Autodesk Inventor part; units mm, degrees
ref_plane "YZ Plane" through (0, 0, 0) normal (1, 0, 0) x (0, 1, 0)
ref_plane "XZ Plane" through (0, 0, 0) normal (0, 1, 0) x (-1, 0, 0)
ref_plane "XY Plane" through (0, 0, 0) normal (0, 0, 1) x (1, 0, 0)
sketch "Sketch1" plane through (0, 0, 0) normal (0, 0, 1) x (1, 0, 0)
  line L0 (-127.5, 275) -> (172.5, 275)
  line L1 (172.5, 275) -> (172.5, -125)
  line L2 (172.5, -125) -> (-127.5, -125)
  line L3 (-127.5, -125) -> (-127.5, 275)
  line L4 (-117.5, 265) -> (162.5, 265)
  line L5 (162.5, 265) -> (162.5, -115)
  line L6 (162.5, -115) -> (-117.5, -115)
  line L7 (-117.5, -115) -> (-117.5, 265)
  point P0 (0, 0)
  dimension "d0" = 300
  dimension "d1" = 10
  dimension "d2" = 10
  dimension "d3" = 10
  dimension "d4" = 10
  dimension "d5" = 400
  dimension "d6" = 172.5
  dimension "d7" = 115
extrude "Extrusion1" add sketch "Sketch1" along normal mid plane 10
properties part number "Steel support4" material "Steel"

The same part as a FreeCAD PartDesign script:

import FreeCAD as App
import Part
import Sketcher

doc = App.newDocument("Part")
body = doc.addObject("PartDesign::Body", "Body")

# Sketch on XY plane
sketch1 = body.newObject("Sketcher::SketchObject", "Sketch")
sketch1.AttachmentSupport = (doc.getObject("XY_Plane"), [""])
sketch1.MapMode = "FlatFace"
sketch1.addGeometry([
    Part.LineSegment(App.Vector(172, 275, 0), App.Vector(-128, 275, 0)),  # 0
    Part.LineSegment(App.Vector(-128, 275, 0), App.Vector(-128, -125, 0)),  # 1
    Part.LineSegment(App.Vector(-128, -125, 0), App.Vector(172, -125, 0)),  # 2
    Part.LineSegment(App.Vector(172, -125, 0), App.Vector(172, 275, 0)),  # 3
    Part.LineSegment(App.Vector(-118, -115, 0), App.Vector(-118, 265, 0)),  # 4
    Part.LineSegment(App.Vector(-118, 265, 0), App.Vector(162, 265, 0)),  # 5
    Part.LineSegment(App.Vector(162, 265, 0), App.Vector(162, -115, 0)),  # 6
    Part.LineSegment(App.Vector(162, -115, 0), App.Vector(-118, -115, 0)),  # 7
], False)
sketch1.addConstraint([
    Sketcher.Constraint("Coincident", 0, 2, 1, 1),
    Sketcher.Constraint("Coincident", 1, 2, 2, 1),
    Sketcher.Constraint("Coincident", 2, 2, 3, 1),
    Sketcher.Constraint("Coincident", 3, 2, 0, 1),
    Sketcher.Constraint("Coincident", 4, 2, 5, 1),
    Sketcher.Constraint("Coincident", 5, 2, 6, 1),
    Sketcher.Constraint("Coincident", 6, 2, 7, 1),
    Sketcher.Constraint("Coincident", 7, 2, 4, 1),
    Sketcher.Constraint("Horizontal", 0),
    Sketcher.Constraint("Vertical", 1),
    Sketcher.Constraint("Horizontal", 2),
    Sketcher.Constraint("Vertical", 3),
    Sketcher.Constraint("Vertical", 4),
    Sketcher.Constraint("Horizontal", 5),
    Sketcher.Constraint("Vertical", 6),
    Sketcher.Constraint("Horizontal", 7),
    Sketcher.Constraint("DistanceX", 0, 2, 0, 1, 300.0),
    Sketcher.Constraint("DistanceY", 1, 2, 1, 1, 400.0),
    Sketcher.Constraint("DistanceY", 6, 2, -1, 1, 115.0),
    Sketcher.Constraint("DistanceX", 0, 2, 4, 2, 10.0),
    Sketcher.Constraint("DistanceY", 4, 2, 0, 2, 10.0),
    Sketcher.Constraint("DistanceX", 5, 2, 3, 2, 10.0),
    Sketcher.Constraint("DistanceY", 2, 2, 6, 2, 10.0),
    Sketcher.Constraint("DistanceX", -1, 1, 2, 2, 172.5),
])
pad1 = body.newObject("PartDesign::Pad", "Pad")
pad1.Profile = sketch1
pad1.Length = 10
pad1.Midplane = True

doc.recompute()
